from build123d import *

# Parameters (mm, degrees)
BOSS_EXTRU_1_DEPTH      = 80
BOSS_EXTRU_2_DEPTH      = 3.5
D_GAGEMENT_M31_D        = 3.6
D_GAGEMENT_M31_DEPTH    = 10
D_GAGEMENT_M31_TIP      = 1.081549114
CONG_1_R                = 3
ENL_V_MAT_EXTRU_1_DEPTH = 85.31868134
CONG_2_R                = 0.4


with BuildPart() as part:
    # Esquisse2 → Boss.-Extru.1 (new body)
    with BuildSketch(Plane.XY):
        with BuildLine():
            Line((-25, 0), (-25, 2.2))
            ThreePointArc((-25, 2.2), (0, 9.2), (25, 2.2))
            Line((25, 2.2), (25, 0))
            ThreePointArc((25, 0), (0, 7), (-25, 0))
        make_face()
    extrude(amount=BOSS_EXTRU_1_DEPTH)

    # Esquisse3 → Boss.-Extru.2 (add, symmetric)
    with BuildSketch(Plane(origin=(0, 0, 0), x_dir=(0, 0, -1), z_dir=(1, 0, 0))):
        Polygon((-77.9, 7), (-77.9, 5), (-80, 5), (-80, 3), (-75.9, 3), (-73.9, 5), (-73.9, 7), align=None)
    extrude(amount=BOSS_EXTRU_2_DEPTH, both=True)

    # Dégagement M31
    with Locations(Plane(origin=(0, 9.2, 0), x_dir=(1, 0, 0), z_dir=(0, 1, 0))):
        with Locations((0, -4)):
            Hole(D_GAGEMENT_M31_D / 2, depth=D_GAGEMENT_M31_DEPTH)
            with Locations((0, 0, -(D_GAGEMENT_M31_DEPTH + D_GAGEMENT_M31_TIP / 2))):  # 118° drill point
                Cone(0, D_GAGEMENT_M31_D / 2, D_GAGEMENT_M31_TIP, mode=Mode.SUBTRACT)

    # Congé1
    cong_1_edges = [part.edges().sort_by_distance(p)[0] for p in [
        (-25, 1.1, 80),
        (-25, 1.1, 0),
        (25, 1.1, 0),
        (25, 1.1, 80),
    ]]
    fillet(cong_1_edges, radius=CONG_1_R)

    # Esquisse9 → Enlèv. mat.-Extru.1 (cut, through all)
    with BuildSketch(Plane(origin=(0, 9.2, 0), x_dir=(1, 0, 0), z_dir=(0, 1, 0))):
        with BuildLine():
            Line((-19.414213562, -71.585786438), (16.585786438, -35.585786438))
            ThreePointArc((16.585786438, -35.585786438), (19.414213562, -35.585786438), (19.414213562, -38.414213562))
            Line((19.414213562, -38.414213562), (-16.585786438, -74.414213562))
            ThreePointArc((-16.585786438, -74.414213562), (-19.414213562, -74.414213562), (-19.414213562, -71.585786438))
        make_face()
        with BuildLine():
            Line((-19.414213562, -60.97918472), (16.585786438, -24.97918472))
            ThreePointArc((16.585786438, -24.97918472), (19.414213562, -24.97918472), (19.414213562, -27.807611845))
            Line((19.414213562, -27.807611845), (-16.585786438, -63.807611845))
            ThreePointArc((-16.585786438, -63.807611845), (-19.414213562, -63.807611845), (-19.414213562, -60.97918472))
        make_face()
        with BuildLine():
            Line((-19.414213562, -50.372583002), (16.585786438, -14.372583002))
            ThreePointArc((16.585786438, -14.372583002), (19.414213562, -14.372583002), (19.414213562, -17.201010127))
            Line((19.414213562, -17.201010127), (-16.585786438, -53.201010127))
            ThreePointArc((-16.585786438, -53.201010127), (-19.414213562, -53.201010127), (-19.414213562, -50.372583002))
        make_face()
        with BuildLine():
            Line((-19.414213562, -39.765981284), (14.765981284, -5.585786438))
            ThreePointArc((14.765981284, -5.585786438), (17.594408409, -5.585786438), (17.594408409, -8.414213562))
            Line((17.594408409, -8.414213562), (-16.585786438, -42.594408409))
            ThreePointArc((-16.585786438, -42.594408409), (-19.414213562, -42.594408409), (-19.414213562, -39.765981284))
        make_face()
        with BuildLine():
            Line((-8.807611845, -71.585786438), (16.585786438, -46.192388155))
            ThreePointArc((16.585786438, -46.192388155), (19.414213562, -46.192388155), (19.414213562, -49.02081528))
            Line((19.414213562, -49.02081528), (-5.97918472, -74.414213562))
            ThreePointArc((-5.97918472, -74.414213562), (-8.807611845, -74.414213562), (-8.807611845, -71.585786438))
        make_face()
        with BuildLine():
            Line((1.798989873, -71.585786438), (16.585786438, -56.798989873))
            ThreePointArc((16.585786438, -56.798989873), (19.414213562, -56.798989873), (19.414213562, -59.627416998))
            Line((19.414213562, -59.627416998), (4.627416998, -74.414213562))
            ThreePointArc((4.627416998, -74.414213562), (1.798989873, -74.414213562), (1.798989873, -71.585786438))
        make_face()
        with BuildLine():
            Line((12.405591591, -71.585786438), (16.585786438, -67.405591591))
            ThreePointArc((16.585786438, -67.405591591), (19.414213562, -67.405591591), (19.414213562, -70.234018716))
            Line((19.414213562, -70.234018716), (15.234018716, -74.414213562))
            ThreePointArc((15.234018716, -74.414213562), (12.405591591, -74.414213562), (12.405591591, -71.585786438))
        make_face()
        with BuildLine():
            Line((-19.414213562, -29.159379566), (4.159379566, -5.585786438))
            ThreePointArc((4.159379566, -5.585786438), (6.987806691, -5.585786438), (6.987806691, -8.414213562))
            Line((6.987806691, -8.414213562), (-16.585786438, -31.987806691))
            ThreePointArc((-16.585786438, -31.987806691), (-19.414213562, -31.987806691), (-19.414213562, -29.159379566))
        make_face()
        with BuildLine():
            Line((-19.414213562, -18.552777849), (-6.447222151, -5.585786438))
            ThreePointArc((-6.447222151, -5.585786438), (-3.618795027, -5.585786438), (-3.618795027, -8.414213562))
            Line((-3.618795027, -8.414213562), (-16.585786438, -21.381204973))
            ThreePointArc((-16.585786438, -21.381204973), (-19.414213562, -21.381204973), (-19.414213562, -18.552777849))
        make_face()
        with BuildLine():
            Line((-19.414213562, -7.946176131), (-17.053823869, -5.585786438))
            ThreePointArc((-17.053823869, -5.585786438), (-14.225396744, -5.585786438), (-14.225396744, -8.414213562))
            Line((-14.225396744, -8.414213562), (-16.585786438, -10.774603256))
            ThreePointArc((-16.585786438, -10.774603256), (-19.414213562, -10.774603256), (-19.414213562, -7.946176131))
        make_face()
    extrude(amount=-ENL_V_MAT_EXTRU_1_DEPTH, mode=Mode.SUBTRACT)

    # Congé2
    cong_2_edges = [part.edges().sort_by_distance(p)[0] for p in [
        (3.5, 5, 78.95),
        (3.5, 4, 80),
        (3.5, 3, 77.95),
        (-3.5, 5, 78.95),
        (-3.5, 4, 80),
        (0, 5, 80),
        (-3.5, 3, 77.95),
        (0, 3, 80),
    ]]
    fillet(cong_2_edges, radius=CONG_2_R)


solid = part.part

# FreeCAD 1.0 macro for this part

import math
import FreeCAD as App
import Part
import Sketcher

V = App.Vector
Q = App.Units.Quantity


def edges_at(feature, points):
    """Names of the edges that pass closest to the given points."""
    edges = feature.Shape.Edges
    near = lambda p: min(range(len(edges)), key=lambda i: edges[i].distToShape(Part.Vertex(*p))[0])
    return sorted({f"Edge{near(p) + 1}" for p in points})


def add_polygon(sketch, points):
    """Adds a closed chain of lines whose ends are joined by coincident constraints."""
    first, n = sketch.GeometryCount, len(points)
    for a, b in zip(points, points[1:] + points[:1]):
        sketch.addGeometry(Part.LineSegment(App.Vector(*a, 0), App.Vector(*b, 0)), False)
    for i in range(n):
        sketch.addConstraint(Sketcher.Constraint("Coincident", first + i, 2, first + (i + 1) % n, 1))

doc = App.newDocument("Part")
body = doc.addObject("PartDesign::Body", "Body")

sketch1 = doc.addObject("Sketcher::SketchObject", "Sketch")
body.addObject(sketch1)
sketch1.AttachmentSupport = (doc.XY_Plane, [""])
sketch1.MapMode = "FlatFace"
sketch1.addGeometry(Part.LineSegment(V(-25, 2.2, 0), V(-25, 0, 0)), False)
sketch1.addGeometry(Part.ArcOfCircle(Part.Circle(V(0, -41.1, 0), V(0, 0, 1), 48.1), math.radians(59), math.radians(121)), False)
sketch1.addGeometry(Part.LineSegment(V(25, 0, 0), V(25, 2.2, 0)), False)
sketch1.addGeometry(Part.ArcOfCircle(Part.Circle(V(0, -38.9, 0), V(0, 0, 1), 48.1), math.radians(59), math.radians(121)), False)
sketch1.addConstraint(Sketcher.Constraint("Coincident", 0, 2, 1, 2))
sketch1.addConstraint(Sketcher.Constraint("Coincident", 1, 1, 2, 1))
sketch1.addConstraint(Sketcher.Constraint("Coincident", 2, 2, 3, 1))
sketch1.addConstraint(Sketcher.Constraint("Coincident", 3, 2, 0, 1))
sketch1.addConstraint(Sketcher.Constraint("Vertical", 0))
sketch1.addConstraint(Sketcher.Constraint("Vertical", 2))
sketch1.addConstraint(Sketcher.Constraint("Equal", 1, 3))
sketch1.addConstraint(Sketcher.Constraint("Symmetric", 0, 2, 1, 1, -1, 1))
sketch1.addConstraint(Sketcher.Constraint("PointOnObject", 1, 3, -2))
sketch1.addConstraint(Sketcher.Constraint("PointOnObject", 3, 3, -2))
sketch1.addConstraint(Sketcher.Constraint("DistanceY", 0, 2, 0, 1, 2.2))
sketch1.addConstraint(Sketcher.Constraint("DistanceX", 0, 2, -1, 1, 25.0))
sketch1.addConstraint(Sketcher.Constraint("Radius", 1, 48.142857))
pad1 = doc.addObject("PartDesign::Pad", "Pad")
body.addObject(pad1)
pad1.Profile = sketch1
pad1.Length = 80

sketch2 = doc.addObject("Sketcher::SketchObject", "Sketch001")
body.addObject(sketch2)
sketch2.AttachmentSupport = (doc.YZ_Plane, [""])
sketch2.MapMode = "FlatFace"
add_polygon(sketch2, [(7, 77.9), (5, 77.9), (5, 80), (3, 80), (3, 75.9), (5, 73.9), (7, 73.9)])
sketch2.addConstraint(Sketcher.Constraint("Horizontal", 0))
sketch2.addConstraint(Sketcher.Constraint("Vertical", 1))
sketch2.addConstraint(Sketcher.Constraint("Horizontal", 2))
sketch2.addConstraint(Sketcher.Constraint("Vertical", 3))
sketch2.addConstraint(Sketcher.Constraint("Horizontal", 5))
sketch2.addConstraint(Sketcher.Constraint("Vertical", 6))
sketch2.addConstraint(Sketcher.Constraint("Vertical", 1, 2, 4, 2))
sketch2.addConstraint(Sketcher.Constraint("Equal", 0, 2))
sketch2.addConstraint(Sketcher.Constraint("DistanceX", 0, 2, 0, 1, 2.0))
sketch2.addConstraint(Sketcher.Constraint("DistanceY", 6, 1, 6, 2, 4.0))
sketch2.addConstraint(Sketcher.Constraint("Angle", 4, Q("-45 deg")))
sketch2.addConstraint(Sketcher.Constraint("DistanceY", 1, 1, 1, 2, 2.1))
sketch2.addConstraint(Sketcher.Constraint("DistanceX", -1, 1, 0, 2, 5.0))
sketch2.addConstraint(Sketcher.Constraint("DistanceY", -1, 1, 1, 2, 80.0))
pad2 = doc.addObject("PartDesign::Pad", "Pad001")
body.addObject(pad2)
pad2.Profile = sketch2
pad2.Length = 7
pad2.Midplane = True

sketch3 = doc.addObject("Sketcher::SketchObject", "Sketch002")
body.addObject(sketch3)
sketch3.AttachmentSupport = (doc.XZ_Plane, [""])
sketch3.MapMode = "FlatFace"
sketch3.AttachmentOffset = App.Placement(V(0, 0, -9.2), App.Rotation())
sketch3.addGeometry(Part.Circle(V(0, 4, 0), V(0, 0, 1), 1.8), False)
sketch3.addConstraint(Sketcher.Constraint("PointOnObject", 0, 3, -2))
sketch3.addConstraint(Sketcher.Constraint("Diameter", 0, 3.6))
sketch3.addConstraint(Sketcher.Constraint("DistanceY", -1, 1, 0, 3, 4.0))
doc.recompute()
hole = doc.addObject("PartDesign::Hole", "Hole")
body.addObject(hole)
hole.Profile = sketch3
hole.ThreadType = "None"
hole.Diameter = 3.6
hole.DepthType = "Dimension"
hole.Depth = 10
hole.DrillPoint = "Angled"
hole.DrillPointAngle = 118
hole.Reversed = True
doc.recompute()

fillet = doc.addObject("PartDesign::Fillet", "Fillet")
body.addObject(fillet)
fillet.Base = (hole, edges_at(hole, [
    (-25, 1.1, 80),
    (-25, 1.1, 0),
    (25, 1.1, 0),
    (25, 1.1, 80),
]))
fillet.Radius = 3

sketch4 = doc.addObject("Sketcher::SketchObject", "Sketch003")
body.addObject(sketch4)
sketch4.AttachmentSupport = (doc.XZ_Plane, [""])
sketch4.MapMode = "FlatFace"
sketch4.AttachmentOffset = App.Placement(V(0, 0, -9.2), App.Rotation())
sketch4.addGeometry(Part.LineSegment(V(16.6, 35.6, 0), V(-19.4, 71.6, 0)), False)
sketch4.addGeometry(Part.ArcOfCircle(Part.Circle(V(-18, 73, 0), V(0, 0, 1), 2), math.radians(45), math.radians(225)), False)
sketch4.addGeometry(Part.LineSegment(V(-16.6, 74.4, 0), V(19.4, 38.4, 0)), False)
sketch4.addGeometry(Part.ArcOfCircle(Part.Circle(V(18, 37, 0), V(0, 0, 1), 2), math.radians(-135), math.radians(45)), False)
sketch4.addGeometry(Part.LineSegment(V(16.6, 25, 0), V(-19.4, 61, 0)), False)
sketch4.addGeometry(Part.ArcOfCircle(Part.Circle(V(-18, 62.4, 0), V(0, 0, 1), 2), math.radians(45), math.radians(225)), False)
sketch4.addGeometry(Part.LineSegment(V(-16.6, 63.8, 0), V(19.4, 27.8, 0)), False)
sketch4.addGeometry(Part.ArcOfCircle(Part.Circle(V(18, 26.4, 0), V(0, 0, 1), 2), math.radians(-135), math.radians(45)), False)
sketch4.addGeometry(Part.LineSegment(V(16.6, 14.4, 0), V(-19.4, 50.4, 0)), False)
sketch4.addGeometry(Part.ArcOfCircle(Part.Circle(V(-18, 51.8, 0), V(0, 0, 1), 2), math.radians(45), math.radians(225)), False)
sketch4.addGeometry(Part.LineSegment(V(-16.6, 53.2, 0), V(19.4, 17.2, 0)), False)
sketch4.addGeometry(Part.ArcOfCircle(Part.Circle(V(18, 15.8, 0), V(0, 0, 1), 2), math.radians(-135), math.radians(45)), False)
sketch4.addGeometry(Part.LineSegment(V(14.8, 5.6, 0), V(-19.4, 39.8, 0)), False)
sketch4.addGeometry(Part.ArcOfCircle(Part.Circle(V(-18, 41.2, 0), V(0, 0, 1), 2), math.radians(45), math.radians(225)), False)
sketch4.addGeometry(Part.LineSegment(V(-16.6, 42.6, 0), V(17.6, 8.4, 0)), False)
sketch4.addGeometry(Part.ArcOfCircle(Part.Circle(V(16.2, 7, 0), V(0, 0, 1), 2), math.radians(-135), math.radians(45)), False)
sketch4.addGeometry(Part.LineSegment(V(16.6, 46.2, 0), V(-8.8, 71.6, 0)), False)
sketch4.addGeometry(Part.ArcOfCircle(Part.Circle(V(-7.4, 73, 0), V(0, 0, 1), 2), math.radians(45), math.radians(225)), False)
sketch4.addGeometry(Part.LineSegment(V(-6, 74.4, 0), V(19.4, 49, 0)), False)
sketch4.addGeometry(Part.ArcOfCircle(Part.Circle(V(18, 47.6, 0), V(0, 0, 1), 2), math.radians(-135), math.radians(45)), False)
sketch4.addGeometry(Part.LineSegment(V(16.6, 56.8, 0), V(1.8, 71.6, 0)), False)
sketch4.addGeometry(Part.ArcOfCircle(Part.Circle(V(3.2, 73, 0), V(0, 0, 1), 2), math.radians(45), math.radians(225)), False)
sketch4.addGeometry(Part.LineSegment(V(4.6, 74.4, 0), V(19.4, 59.6, 0)), False)
sketch4.addGeometry(Part.ArcOfCircle(Part.Circle(V(18, 58.2, 0), V(0, 0, 1), 2), math.radians(-135), math.radians(45)), False)
sketch4.addGeometry(Part.LineSegment(V(16.6, 67.4, 0), V(12.4, 71.6, 0)), False)
sketch4.addGeometry(Part.ArcOfCircle(Part.Circle(V(13.8, 73, 0), V(0, 0, 1), 2), math.radians(45), math.radians(225)), False)
sketch4.addGeometry(Part.LineSegment(V(15.2, 74.4, 0), V(19.4, 70.2, 0)), False)
sketch4.addGeometry(Part.ArcOfCircle(Part.Circle(V(18, 68.8, 0), V(0, 0, 1), 2), math.radians(-135), math.radians(45)), False)
sketch4.addGeometry(Part.LineSegment(V(4.2, 5.6, 0), V(-19.4, 29.2, 0)), False)
sketch4.addGeometry(Part.ArcOfCircle(Part.Circle(V(-18, 30.6, 0), V(0, 0, 1), 2), math.radians(45), math.radians(225)), False)
sketch4.addGeometry(Part.LineSegment(V(-16.6, 32, 0), V(7, 8.4, 0)), False)
sketch4.addGeometry(Part.ArcOfCircle(Part.Circle(V(5.6, 7, 0), V(0, 0, 1), 2), math.radians(-135), math.radians(45)), False)
sketch4.addGeometry(Part.LineSegment(V(-6.4, 5.6, 0), V(-19.4, 18.6, 0)), False)
sketch4.addGeometry(Part.ArcOfCircle(Part.Circle(V(-18, 20, 0), V(0, 0, 1), 2), math.radians(45), math.radians(225)), False)
sketch4.addGeometry(Part.LineSegment(V(-16.6, 21.4, 0), V(-3.6, 8.4, 0)), False)
sketch4.addGeometry(Part.ArcOfCircle(Part.Circle(V(-5, 7, 0), V(0, 0, 1), 2), math.radians(-135), math.radians(45)), False)
sketch4.addGeometry(Part.LineSegment(V(-17.1, 5.6, 0), V(-19.4, 7.9, 0)), False)
sketch4.addGeometry(Part.ArcOfCircle(Part.Circle(V(-18, 9.4, 0), V(0, 0, 1), 2), math.radians(45), math.radians(225)), False)
sketch4.addGeometry(Part.LineSegment(V(-16.6, 10.8, 0), V(-14.2, 8.4, 0)), False)
sketch4.addGeometry(Part.ArcOfCircle(Part.Circle(V(-15.6, 7, 0), V(0, 0, 1), 2), math.radians(-135), math.radians(45)), False)
sketch4.addConstraint(Sketcher.Constraint("Tangent", 0, 2, 1, 2))
sketch4.addConstraint(Sketcher.Constraint("Tangent", 1, 1, 2, 1))
sketch4.addConstraint(Sketcher.Constraint("Tangent", 2, 2, 3, 2))
sketch4.addConstraint(Sketcher.Constraint("Tangent", 3, 1, 0, 1))
sketch4.addConstraint(Sketcher.Constraint("Tangent", 4, 2, 5, 2))
sketch4.addConstraint(Sketcher.Constraint("Tangent", 5, 1, 6, 1))
sketch4.addConstraint(Sketcher.Constraint("Tangent", 6, 2, 7, 2))
sketch4.addConstraint(Sketcher.Constraint("Tangent", 7, 1, 4, 1))
sketch4.addConstraint(Sketcher.Constraint("Tangent", 8, 2, 9, 2))
sketch4.addConstraint(Sketcher.Constraint("Tangent", 9, 1, 10, 1))
sketch4.addConstraint(Sketcher.Constraint("Tangent", 10, 2, 11, 2))
sketch4.addConstraint(Sketcher.Constraint("Tangent", 11, 1, 8, 1))
sketch4.addConstraint(Sketcher.Constraint("Tangent", 12, 2, 13, 2))
sketch4.addConstraint(Sketcher.Constraint("Tangent", 13, 1, 14, 1))
sketch4.addConstraint(Sketcher.Constraint("Tangent", 14, 2, 15, 2))
sketch4.addConstraint(Sketcher.Constraint("Tangent", 15, 1, 12, 1))
sketch4.addConstraint(Sketcher.Constraint("Tangent", 16, 2, 17, 2))
sketch4.addConstraint(Sketcher.Constraint("Tangent", 17, 1, 18, 1))
sketch4.addConstraint(Sketcher.Constraint("Tangent", 18, 2, 19, 2))
sketch4.addConstraint(Sketcher.Constraint("Tangent", 19, 1, 16, 1))
sketch4.addConstraint(Sketcher.Constraint("Tangent", 20, 2, 21, 2))
sketch4.addConstraint(Sketcher.Constraint("Tangent", 21, 1, 22, 1))
sketch4.addConstraint(Sketcher.Constraint("Tangent", 22, 2, 23, 2))
sketch4.addConstraint(Sketcher.Constraint("Tangent", 23, 1, 20, 1))
sketch4.addConstraint(Sketcher.Constraint("Tangent", 24, 2, 25, 2))
sketch4.addConstraint(Sketcher.Constraint("Tangent", 25, 1, 26, 1))
sketch4.addConstraint(Sketcher.Constraint("Tangent", 26, 2, 27, 2))
sketch4.addConstraint(Sketcher.Constraint("Tangent", 27, 1, 24, 1))
sketch4.addConstraint(Sketcher.Constraint("Tangent", 28, 2, 29, 2))
sketch4.addConstraint(Sketcher.Constraint("Tangent", 29, 1, 30, 1))
sketch4.addConstraint(Sketcher.Constraint("Tangent", 30, 2, 31, 2))
sketch4.addConstraint(Sketcher.Constraint("Tangent", 31, 1, 28, 1))
sketch4.addConstraint(Sketcher.Constraint("Tangent", 32, 2, 33, 2))
sketch4.addConstraint(Sketcher.Constraint("Tangent", 33, 1, 34, 1))
sketch4.addConstraint(Sketcher.Constraint("Tangent", 34, 2, 35, 2))
sketch4.addConstraint(Sketcher.Constraint("Tangent", 35, 1, 32, 1))
sketch4.addConstraint(Sketcher.Constraint("Tangent", 36, 2, 37, 2))
sketch4.addConstraint(Sketcher.Constraint("Tangent", 37, 1, 38, 1))
sketch4.addConstraint(Sketcher.Constraint("Tangent", 38, 2, 39, 2))
sketch4.addConstraint(Sketcher.Constraint("Tangent", 39, 1, 36, 1))
sketch4.addConstraint(Sketcher.Constraint("Equal", 1, 3))
sketch4.addConstraint(Sketcher.Constraint("Equal", 3, 5))
sketch4.addConstraint(Sketcher.Constraint("Equal", 5, 7))
sketch4.addConstraint(Sketcher.Constraint("Equal", 7, 9))
sketch4.addConstraint(Sketcher.Constraint("Equal", 9, 11))
sketch4.addConstraint(Sketcher.Constraint("Equal", 11, 13))
sketch4.addConstraint(Sketcher.Constraint("Equal", 13, 15))
sketch4.addConstraint(Sketcher.Constraint("Equal", 15, 17))
sketch4.addConstraint(Sketcher.Constraint("Equal", 17, 19))
sketch4.addConstraint(Sketcher.Constraint("Equal", 19, 21))
sketch4.addConstraint(Sketcher.Constraint("Equal", 21, 23))
sketch4.addConstraint(Sketcher.Constraint("Equal", 23, 25))
sketch4.addConstraint(Sketcher.Constraint("Equal", 25, 27))
sketch4.addConstraint(Sketcher.Constraint("Equal", 27, 29))
sketch4.addConstraint(Sketcher.Constraint("Equal", 29, 31))
sketch4.addConstraint(Sketcher.Constraint("Equal", 31, 33))
sketch4.addConstraint(Sketcher.Constraint("Equal", 33, 35))
sketch4.addConstraint(Sketcher.Constraint("Equal", 35, 37))
sketch4.addConstraint(Sketcher.Constraint("Equal", 37, 39))
sketch4.addConstraint(Sketcher.Constraint("Parallel", 2, 4))
sketch4.addConstraint(Sketcher.Constraint("Parallel", 6, 8))
sketch4.addConstraint(Sketcher.Constraint("Parallel", 10, 12))
sketch4.addConstraint(Sketcher.Constraint("Parallel", 14, 16))
sketch4.addConstraint(Sketcher.Constraint("Parallel", 18, 20))
sketch4.addConstraint(Sketcher.Constraint("Parallel", 22, 24))
sketch4.addConstraint(Sketcher.Constraint("Parallel", 26, 28))
sketch4.addConstraint(Sketcher.Constraint("Parallel", 30, 32))
sketch4.addConstraint(Sketcher.Constraint("Parallel", 34, 36))
sketch4.addConstraint(Sketcher.Constraint("Horizontal", 1, 3, 17, 3))
sketch4.addConstraint(Sketcher.Constraint("Horizontal", 17, 3, 21, 3))
sketch4.addConstraint(Sketcher.Constraint("Horizontal", 21, 3, 25, 3))
sketch4.addConstraint(Sketcher.Constraint("Horizontal", 15, 3, 31, 3))
sketch4.addConstraint(Sketcher.Constraint("Horizontal", 31, 3, 35, 3))
sketch4.addConstraint(Sketcher.Constraint("Horizontal", 35, 3, 39, 3))
sketch4.addConstraint(Sketcher.Constraint("Vertical", 1, 3, 5, 3))
sketch4.addConstraint(Sketcher.Constraint("Vertical", 3, 3, 7, 3))
sketch4.addConstraint(Sketcher.Constraint("Vertical", 5, 3, 9, 3))
sketch4.addConstraint(Sketcher.Constraint("Vertical", 7, 3, 11, 3))
sketch4.addConstraint(Sketcher.Constraint("Vertical", 9, 3, 13, 3))
sketch4.addConstraint(Sketcher.Constraint("Vertical", 11, 3, 19, 3))
sketch4.addConstraint(Sketcher.Constraint("Vertical", 19, 3, 23, 3))
sketch4.addConstraint(Sketcher.Constraint("Vertical", 23, 3, 27, 3))
sketch4.addConstraint(Sketcher.Constraint("Vertical", 13, 3, 29, 3))
sketch4.addConstraint(Sketcher.Constraint("Vertical", 29, 3, 33, 3))
sketch4.addConstraint(Sketcher.Constraint("Vertical", 33, 3, 37, 3))
sketch4.addConstraint(Sketcher.Constraint("Radius", 1, 2.0))
sketch4.addConstraint(Sketcher.Constraint("Angle", 0, Q("135 deg")))
sketch4.addConstraint(Sketcher.Constraint("DistanceX", 1, 3, -1, 1, 18.0))
sketch4.addConstraint(Sketcher.Constraint("DistanceY", -1, 1, 1, 3, 73.0))
sketch4.addConstraint(Sketcher.Constraint("DistanceX", -1, 1, 3, 3, 18.0))
sketch4.addConstraint(Sketcher.Constraint("DistanceY", -1, 1, 15, 3, 7.0))
sketch4.addConstraint(Sketcher.Constraint("DistanceY", -1, 1, 5, 3, 62.393398))
sketch4.addConstraint(Sketcher.Constraint("DistanceX", 17, 3, -1, 1, 7.393398))
sketch4.addConstraint(Sketcher.Constraint("DistanceY", 9, 3, 5, 3, 10.606602))
sketch4.addConstraint(Sketcher.Constraint("DistanceY", 13, 3, 9, 3, 10.606602))
sketch4.addConstraint(Sketcher.Constraint("DistanceX", 17, 3, 21, 3, 10.606602))
sketch4.addConstraint(Sketcher.Constraint("DistanceX", 21, 3, 25, 3, 10.606602))
sketch4.addConstraint(Sketcher.Constraint("DistanceY", 29, 3, 13, 3, 10.606602))
sketch4.addConstraint(Sketcher.Constraint("DistanceY", 33, 3, 29, 3, 10.606602))
sketch4.addConstraint(Sketcher.Constraint("DistanceY", 37, 3, 33, 3, 10.606602))
pocket1 = doc.addObject("PartDesign::Pocket", "Pocket")
body.addObject(pocket1)
pocket1.Profile = sketch4
pocket1.Type = "ThroughAll"
pocket1.Reversed = True
doc.recompute()

fillet2 = doc.addObject("PartDesign::Fillet", "Fillet001")
body.addObject(fillet2)
fillet2.Base = (pocket1, edges_at(pocket1, [
    (3.5, 5, 78.95),
    (3.5, 4, 80),
    (3.5, 3, 77.95),
    (-3.5, 5, 78.95),
    (-3.5, 4, 80),
    (0, 5, 80),
    (-3.5, 3, 77.95),
    (0, 3, 80),
]))
fillet2.Radius = 0.4

doc.recompute()
